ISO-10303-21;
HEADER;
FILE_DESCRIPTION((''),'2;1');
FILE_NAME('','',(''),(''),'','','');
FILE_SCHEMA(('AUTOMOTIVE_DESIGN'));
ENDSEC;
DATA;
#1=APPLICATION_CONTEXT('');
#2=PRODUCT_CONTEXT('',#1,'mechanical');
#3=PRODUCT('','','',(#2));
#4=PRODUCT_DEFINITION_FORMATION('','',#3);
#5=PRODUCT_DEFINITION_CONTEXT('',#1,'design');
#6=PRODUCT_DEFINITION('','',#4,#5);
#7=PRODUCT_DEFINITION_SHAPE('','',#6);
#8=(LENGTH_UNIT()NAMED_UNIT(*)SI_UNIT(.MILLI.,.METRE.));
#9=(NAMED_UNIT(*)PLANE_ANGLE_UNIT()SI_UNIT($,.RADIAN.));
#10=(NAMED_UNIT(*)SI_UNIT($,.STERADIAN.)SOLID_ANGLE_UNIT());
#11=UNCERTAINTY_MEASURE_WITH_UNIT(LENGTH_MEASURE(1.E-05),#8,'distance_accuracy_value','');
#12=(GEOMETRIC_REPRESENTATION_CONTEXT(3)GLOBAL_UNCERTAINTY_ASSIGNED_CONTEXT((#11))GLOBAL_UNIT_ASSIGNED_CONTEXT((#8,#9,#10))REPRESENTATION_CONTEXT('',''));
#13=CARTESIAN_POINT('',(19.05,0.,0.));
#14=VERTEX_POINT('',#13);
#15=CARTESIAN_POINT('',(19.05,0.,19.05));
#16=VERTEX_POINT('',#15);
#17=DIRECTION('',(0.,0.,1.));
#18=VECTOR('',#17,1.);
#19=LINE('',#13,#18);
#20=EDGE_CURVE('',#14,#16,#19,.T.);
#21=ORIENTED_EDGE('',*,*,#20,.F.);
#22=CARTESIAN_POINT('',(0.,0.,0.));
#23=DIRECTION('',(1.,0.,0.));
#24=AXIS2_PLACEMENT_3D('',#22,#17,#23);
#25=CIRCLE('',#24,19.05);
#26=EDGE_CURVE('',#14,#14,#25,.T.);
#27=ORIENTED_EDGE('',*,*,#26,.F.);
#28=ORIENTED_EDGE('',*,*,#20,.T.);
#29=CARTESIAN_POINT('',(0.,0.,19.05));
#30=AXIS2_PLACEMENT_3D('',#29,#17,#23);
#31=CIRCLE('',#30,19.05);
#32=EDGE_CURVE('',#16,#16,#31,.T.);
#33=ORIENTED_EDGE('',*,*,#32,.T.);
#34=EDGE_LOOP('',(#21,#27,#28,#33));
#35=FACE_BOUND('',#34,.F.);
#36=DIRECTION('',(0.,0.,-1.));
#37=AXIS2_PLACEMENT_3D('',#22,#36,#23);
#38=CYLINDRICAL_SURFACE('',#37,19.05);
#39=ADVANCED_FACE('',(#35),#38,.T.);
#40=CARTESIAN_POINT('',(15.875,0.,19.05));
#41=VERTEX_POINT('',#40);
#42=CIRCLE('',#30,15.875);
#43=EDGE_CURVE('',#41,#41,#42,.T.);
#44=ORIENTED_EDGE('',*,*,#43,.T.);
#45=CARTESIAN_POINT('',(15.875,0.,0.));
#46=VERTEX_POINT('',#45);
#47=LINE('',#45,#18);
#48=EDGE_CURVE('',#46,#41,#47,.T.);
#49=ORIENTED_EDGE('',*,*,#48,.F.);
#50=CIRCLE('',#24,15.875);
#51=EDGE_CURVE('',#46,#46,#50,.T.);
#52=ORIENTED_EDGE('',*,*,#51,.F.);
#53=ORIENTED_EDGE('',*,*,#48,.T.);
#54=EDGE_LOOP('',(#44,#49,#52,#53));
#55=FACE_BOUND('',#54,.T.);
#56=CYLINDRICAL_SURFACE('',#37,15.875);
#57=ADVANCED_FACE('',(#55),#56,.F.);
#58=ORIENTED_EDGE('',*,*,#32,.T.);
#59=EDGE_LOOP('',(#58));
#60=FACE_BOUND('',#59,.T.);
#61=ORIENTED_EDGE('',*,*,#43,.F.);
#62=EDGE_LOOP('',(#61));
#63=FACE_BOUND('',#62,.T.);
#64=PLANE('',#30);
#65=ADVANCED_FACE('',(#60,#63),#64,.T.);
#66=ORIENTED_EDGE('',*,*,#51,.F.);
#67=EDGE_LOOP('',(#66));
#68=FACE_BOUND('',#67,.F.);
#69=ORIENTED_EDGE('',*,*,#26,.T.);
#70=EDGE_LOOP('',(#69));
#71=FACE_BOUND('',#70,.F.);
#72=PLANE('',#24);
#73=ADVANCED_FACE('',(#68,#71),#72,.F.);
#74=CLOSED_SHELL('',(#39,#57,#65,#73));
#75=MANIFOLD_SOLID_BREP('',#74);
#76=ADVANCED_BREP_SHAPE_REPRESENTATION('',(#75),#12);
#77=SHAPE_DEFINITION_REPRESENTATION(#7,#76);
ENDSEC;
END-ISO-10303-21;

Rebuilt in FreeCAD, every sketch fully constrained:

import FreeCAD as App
import Part
import Sketcher

V = App.Vector
Q = App.Units.Quantity

doc = App.newDocument("Part")
body = doc.addObject("PartDesign::Body", "Body")

# Sketch on XY plane
sketch1 = body.newObject("Sketcher::SketchObject", "Sketch")
sketch1.AttachmentSupport = (doc.getObject("XY_Plane"), [""])
sketch1.MapMode = "FlatFace"
sketch1.addGeometry([
    Part.Circle(V(0, 0, 0), V(0, 0, 1), 19),
    Part.Circle(V(0, 0, 0), V(0, 0, 1), 16),
], False)
sketch1.addConstraint([
    Sketcher.Constraint("Coincident", 0, 3, -1, 1),
    Sketcher.Constraint("Coincident", 1, 3, -1, 1),
    Sketcher.Constraint("Diameter", 0, Q("1.5 in")),
    Sketcher.Constraint("Diameter", 1, Q("1.25 in")),
])
pad1 = body.newObject("PartDesign::Pad", "Pad")
pad1.Profile = sketch1
pad1.Length = Q("0.75 in")

doc.recompute()
